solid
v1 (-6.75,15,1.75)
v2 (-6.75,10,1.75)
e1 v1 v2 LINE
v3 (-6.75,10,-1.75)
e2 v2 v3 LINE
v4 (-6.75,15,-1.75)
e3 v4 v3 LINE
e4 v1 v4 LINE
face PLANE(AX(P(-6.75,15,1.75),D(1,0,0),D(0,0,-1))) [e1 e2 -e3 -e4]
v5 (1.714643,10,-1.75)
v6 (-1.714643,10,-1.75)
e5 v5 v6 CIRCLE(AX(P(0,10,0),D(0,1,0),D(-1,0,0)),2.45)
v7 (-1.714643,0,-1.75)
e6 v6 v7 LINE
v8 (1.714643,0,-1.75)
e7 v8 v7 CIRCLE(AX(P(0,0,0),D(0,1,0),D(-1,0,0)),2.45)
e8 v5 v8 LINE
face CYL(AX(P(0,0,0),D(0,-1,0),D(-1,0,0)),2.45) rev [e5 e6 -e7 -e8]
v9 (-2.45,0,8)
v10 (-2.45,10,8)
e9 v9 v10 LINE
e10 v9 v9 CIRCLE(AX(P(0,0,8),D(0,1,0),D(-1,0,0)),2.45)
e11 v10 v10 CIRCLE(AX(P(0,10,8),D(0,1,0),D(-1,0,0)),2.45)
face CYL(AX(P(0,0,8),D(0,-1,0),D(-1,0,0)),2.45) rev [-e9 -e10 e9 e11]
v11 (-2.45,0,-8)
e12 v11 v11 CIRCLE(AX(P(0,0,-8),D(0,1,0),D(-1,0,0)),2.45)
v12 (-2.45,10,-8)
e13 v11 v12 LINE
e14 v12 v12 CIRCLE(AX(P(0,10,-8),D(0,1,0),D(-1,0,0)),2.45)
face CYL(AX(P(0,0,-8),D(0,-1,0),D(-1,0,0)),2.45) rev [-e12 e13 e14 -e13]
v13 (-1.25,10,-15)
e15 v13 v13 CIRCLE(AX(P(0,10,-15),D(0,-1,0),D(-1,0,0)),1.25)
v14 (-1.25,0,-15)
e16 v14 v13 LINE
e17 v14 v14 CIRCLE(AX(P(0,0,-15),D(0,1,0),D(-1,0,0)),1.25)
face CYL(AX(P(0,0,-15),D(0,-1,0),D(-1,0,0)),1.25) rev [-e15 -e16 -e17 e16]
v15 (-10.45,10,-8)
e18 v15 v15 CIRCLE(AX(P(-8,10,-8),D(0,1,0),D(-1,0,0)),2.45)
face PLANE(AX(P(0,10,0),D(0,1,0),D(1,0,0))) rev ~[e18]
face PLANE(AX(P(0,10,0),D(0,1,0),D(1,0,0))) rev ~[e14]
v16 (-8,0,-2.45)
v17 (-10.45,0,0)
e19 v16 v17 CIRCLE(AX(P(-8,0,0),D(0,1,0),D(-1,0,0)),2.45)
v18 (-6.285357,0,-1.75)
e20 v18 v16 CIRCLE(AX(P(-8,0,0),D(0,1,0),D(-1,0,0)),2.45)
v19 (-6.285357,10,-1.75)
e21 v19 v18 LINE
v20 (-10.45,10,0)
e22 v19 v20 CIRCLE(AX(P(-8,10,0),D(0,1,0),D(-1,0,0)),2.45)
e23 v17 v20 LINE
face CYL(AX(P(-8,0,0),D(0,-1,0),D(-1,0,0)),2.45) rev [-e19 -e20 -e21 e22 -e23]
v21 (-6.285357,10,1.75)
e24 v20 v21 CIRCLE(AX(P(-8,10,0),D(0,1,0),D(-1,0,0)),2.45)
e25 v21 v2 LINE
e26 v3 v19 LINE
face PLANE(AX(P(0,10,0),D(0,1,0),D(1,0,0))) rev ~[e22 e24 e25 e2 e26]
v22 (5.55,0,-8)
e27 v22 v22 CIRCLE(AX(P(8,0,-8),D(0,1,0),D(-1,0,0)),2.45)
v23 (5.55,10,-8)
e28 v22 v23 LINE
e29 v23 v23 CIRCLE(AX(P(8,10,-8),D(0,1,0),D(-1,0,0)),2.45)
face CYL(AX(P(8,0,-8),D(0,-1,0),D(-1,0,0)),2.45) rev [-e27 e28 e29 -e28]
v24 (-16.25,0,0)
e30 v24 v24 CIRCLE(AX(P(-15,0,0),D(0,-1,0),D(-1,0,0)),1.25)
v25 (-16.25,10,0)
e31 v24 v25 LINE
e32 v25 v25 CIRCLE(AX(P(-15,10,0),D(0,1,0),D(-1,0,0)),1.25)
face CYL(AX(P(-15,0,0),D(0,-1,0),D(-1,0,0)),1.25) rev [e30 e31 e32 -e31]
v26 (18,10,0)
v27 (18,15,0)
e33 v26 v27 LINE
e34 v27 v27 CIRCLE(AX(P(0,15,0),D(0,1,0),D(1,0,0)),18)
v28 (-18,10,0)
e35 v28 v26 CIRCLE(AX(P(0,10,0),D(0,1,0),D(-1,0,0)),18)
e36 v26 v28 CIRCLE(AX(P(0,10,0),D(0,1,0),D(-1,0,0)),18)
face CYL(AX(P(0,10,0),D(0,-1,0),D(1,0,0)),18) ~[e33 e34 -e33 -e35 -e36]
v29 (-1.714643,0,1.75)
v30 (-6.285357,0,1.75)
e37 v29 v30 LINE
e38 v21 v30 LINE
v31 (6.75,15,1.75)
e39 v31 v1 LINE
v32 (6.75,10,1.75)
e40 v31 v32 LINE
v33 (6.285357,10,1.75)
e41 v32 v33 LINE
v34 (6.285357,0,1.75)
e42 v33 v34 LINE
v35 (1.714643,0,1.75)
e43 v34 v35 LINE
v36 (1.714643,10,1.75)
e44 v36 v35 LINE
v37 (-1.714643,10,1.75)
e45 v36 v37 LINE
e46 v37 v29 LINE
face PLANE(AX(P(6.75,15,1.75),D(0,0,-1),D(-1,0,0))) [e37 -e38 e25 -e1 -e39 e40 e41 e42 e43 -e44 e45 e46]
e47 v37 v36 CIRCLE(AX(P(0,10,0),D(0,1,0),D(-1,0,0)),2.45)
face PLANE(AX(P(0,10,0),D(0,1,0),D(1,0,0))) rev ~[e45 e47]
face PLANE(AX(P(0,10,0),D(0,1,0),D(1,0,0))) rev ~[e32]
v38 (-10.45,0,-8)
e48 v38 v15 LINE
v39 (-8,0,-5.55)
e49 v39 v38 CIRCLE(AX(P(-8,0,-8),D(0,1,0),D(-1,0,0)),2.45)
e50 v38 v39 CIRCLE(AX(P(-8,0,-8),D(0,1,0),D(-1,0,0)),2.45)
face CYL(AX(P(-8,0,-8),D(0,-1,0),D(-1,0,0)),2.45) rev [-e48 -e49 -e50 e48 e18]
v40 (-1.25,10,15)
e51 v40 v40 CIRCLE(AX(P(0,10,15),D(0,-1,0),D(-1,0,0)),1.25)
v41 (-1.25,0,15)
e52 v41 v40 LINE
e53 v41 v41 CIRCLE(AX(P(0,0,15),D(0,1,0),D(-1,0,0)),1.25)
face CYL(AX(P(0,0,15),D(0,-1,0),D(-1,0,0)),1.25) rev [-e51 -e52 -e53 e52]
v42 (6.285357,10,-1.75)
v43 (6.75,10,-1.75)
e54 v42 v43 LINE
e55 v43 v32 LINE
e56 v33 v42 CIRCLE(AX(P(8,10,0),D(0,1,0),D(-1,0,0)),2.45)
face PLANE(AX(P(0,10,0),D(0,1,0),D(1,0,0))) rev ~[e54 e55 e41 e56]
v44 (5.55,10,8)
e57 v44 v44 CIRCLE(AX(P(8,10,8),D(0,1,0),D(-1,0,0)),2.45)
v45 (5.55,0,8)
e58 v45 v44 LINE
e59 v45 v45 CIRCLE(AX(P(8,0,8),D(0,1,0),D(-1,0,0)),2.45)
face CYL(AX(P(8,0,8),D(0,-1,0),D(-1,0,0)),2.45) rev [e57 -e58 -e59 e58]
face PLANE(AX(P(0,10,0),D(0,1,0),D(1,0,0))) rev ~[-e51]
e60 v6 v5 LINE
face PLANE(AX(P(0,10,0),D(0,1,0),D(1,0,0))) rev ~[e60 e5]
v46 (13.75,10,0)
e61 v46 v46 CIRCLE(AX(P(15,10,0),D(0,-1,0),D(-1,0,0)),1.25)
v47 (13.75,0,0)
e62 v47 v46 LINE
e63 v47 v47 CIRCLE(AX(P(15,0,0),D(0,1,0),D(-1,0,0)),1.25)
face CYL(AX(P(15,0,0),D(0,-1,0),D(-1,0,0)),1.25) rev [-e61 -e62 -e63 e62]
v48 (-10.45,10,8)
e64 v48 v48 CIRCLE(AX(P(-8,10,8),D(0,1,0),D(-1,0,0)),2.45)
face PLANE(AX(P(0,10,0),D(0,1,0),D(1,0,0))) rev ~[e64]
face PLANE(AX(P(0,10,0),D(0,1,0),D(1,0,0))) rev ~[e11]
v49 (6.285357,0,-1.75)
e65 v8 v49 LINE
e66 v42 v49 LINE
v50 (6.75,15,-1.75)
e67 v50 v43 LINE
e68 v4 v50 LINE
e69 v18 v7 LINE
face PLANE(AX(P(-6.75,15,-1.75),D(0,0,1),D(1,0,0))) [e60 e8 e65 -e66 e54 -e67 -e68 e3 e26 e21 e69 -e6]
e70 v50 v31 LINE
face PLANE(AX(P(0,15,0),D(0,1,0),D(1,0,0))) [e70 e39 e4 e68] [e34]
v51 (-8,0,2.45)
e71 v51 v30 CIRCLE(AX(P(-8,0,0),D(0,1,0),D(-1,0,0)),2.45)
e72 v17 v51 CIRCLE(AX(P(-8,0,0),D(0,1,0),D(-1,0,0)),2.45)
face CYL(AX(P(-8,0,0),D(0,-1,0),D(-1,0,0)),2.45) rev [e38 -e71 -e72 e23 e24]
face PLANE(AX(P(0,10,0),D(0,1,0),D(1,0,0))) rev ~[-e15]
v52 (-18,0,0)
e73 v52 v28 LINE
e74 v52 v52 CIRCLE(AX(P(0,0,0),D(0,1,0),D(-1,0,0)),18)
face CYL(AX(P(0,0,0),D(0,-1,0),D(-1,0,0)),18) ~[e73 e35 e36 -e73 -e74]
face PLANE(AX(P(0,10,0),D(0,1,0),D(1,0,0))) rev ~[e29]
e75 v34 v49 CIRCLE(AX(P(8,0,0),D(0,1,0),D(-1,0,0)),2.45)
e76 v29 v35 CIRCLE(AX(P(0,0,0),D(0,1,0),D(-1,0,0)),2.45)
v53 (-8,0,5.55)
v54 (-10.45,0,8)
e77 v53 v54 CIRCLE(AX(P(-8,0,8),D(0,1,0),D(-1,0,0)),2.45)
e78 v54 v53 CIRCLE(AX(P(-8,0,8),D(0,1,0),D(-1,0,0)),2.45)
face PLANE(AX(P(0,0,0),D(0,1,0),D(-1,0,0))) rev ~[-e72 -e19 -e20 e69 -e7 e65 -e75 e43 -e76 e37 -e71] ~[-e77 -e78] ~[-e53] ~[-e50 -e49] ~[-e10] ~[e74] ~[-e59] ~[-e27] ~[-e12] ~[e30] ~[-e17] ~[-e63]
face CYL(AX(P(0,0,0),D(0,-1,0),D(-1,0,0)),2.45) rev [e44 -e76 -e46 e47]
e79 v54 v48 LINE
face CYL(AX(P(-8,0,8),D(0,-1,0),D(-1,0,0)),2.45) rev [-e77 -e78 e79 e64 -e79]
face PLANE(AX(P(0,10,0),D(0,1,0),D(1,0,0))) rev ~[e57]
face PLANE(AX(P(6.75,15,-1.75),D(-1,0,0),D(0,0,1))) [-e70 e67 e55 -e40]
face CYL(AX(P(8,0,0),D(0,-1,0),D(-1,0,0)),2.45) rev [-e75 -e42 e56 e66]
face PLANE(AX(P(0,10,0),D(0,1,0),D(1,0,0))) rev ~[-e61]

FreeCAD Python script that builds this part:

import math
import FreeCAD as App
import Part
import Sketcher

V = App.Vector
Q = App.Units.Quantity


def add_polygon(sketch, points):
    """Adds a closed chain of lines whose ends are joined by coincident constraints."""
    first, n = sketch.GeometryCount, len(points)
    for a, b in zip(points, points[1:] + points[:1]):
        sketch.addGeometry(Part.LineSegment(App.Vector(*a, 0), App.Vector(*b, 0)), False)
    for i in range(n):
        sketch.addConstraint(Sketcher.Constraint("Coincident", first + i, 2, first + (i + 1) % n, 1))

doc = App.newDocument("Part")
params = doc.addObject("Spreadsheet::Sheet", "Params")
for row, (alias, value) in enumerate([
    ("sketch1_diameter", "36 mm"),
    ("sketch1_diameter2", "2.5 mm"),
    ("sketch1_diameter3", "4.9 mm"),
    ("pad1_length", "10 mm"),
    ("sketch2_diameter", "36 mm"),
    ("pad2_length", "5 mm"),
    ("sketch3_width", "13.5 mm"),
    ("sketch3_height", "3.5 mm"),
    ("pocket1_length", "15 mm"),
], start=1):
    params.set(f"A{row}", alias)
    params.set(f"B{row}", "=" + value)
    params.setAlias(f"B{row}", alias)

body = doc.addObject("PartDesign::Body", "Body")

# Sketch on XZ plane
sketch1 = body.newObject("Sketcher::SketchObject", "Sketch")
sketch1.AttachmentSupport = (doc.getObject("XZ_Plane"), [""])
sketch1.MapMode = "FlatFace"
sketch1.addGeometry(Part.Circle(V(0, 0, 0), V(0, 0, 1), 18), False)
sketch1.addGeometry(Part.Circle(V(-15, 0, 0), V(0, 0, 1), 1.2), False)
sketch1.addGeometry(Part.Circle(V(0, -15, 0), V(0, 0, 1), 1.2), False)
sketch1.addGeometry(Part.Circle(V(15, 0, 0), V(0, 0, 1), 1.2), False)
sketch1.addGeometry(Part.Circle(V(0, 15, 0), V(0, 0, 1), 1.2), False)
sketch1.addGeometry(Part.Circle(V(8, -8, 0), V(0, 0, 1), 2.5), False)
sketch1.addGeometry(Part.Circle(V(0, -8, 0), V(0, 0, 1), 2.5), False)
sketch1.addGeometry(Part.Circle(V(-8, -8, 0), V(0, 0, 1), 2.5), False)
sketch1.addGeometry(Part.Circle(V(8, 0, 0), V(0, 0, 1), 2.5), False)
sketch1.addGeometry(Part.Circle(V(8, 8, 0), V(0, 0, 1), 2.5), False)
sketch1.addGeometry(Part.ArcOfCircle(Part.Circle(V(0, 0, 0), V(0, 0, 1), 2.5), math.radians(0), math.radians(180)), False)
sketch1.addGeometry(Part.ArcOfCircle(Part.Circle(V(0, 0, 0), V(0, 0, 1), 2.5), math.radians(180), math.radians(360)), False)
sketch1.addGeometry(Part.ArcOfCircle(Part.Circle(V(-8, 0, 0), V(0, 0, 1), 2.5), math.radians(-90), math.radians(0)), False)
sketch1.addGeometry(Part.ArcOfCircle(Part.Circle(V(-8, 0, 0), V(0, 0, 1), 2.5), math.radians(0), math.radians(90)), False)
sketch1.addGeometry(Part.ArcOfCircle(Part.Circle(V(-8, 0, 0), V(0, 0, 1), 2.5), math.radians(90), math.radians(270)), False)
sketch1.addGeometry(Part.Circle(V(0, 8, 0), V(0, 0, 1), 2.5), False)
sketch1.addGeometry(Part.Circle(V(-8, 8, 0), V(0, 0, 1), 2.5), False)
sketch1.addConstraint(Sketcher.Constraint("Tangent", 10, 1, 11, 2))
sketch1.addConstraint(Sketcher.Constraint("Coincident", 11, 1, 10, 2))
sketch1.addConstraint(Sketcher.Constraint("Tangent", 12, 2, 13, 1))
sketch1.addConstraint(Sketcher.Constraint("Tangent", 13, 2, 14, 1))
sketch1.addConstraint(Sketcher.Constraint("Tangent", 14, 2, 12, 1))
sketch1.addConstraint(Sketcher.Constraint("Coincident", 0, 3, -1, 1))
sketch1.addConstraint(Sketcher.Constraint("Coincident", 10, 3, -1, 1))
sketch1.addConstraint(Sketcher.Constraint("Equal", 1, 2))
sketch1.addConstraint(Sketcher.Constraint("Equal", 2, 3))
sketch1.addConstraint(Sketcher.Constraint("Equal", 3, 4))
sketch1.addConstraint(Sketcher.Constraint("Equal", 5, 6))
sketch1.addConstraint(Sketcher.Constraint("Equal", 6, 7))
sketch1.addConstraint(Sketcher.Constraint("Equal", 7, 8))
sketch1.addConstraint(Sketcher.Constraint("Equal", 8, 9))
sketch1.addConstraint(Sketcher.Constraint("Equal", 9, 10))
sketch1.addConstraint(Sketcher.Constraint("Equal", 11, 12))
sketch1.addConstraint(Sketcher.Constraint("Equal", 14, 15))
sketch1.addConstraint(Sketcher.Constraint("Equal", 15, 16))
sketch1.addConstraint(Sketcher.Constraint("Symmetric", 1, 3, 3, 3, -1, 1))
sketch1.addConstraint(Sketcher.Constraint("Symmetric", 2, 3, 4, 3, -1, 1))
sketch1.addConstraint(Sketcher.Constraint("Symmetric", 7, 3, 9, 3, -1, 1))
sketch1.addConstraint(Sketcher.Constraint("Symmetric", 8, 3, 12, 3, -1, 1))
sketch1.addConstraint(Sketcher.Constraint("Symmetric", 6, 3, 15, 3, -1, 1))
sketch1.addConstraint(Sketcher.Constraint("Symmetric", 5, 3, 16, 3, -1, 1))
sketch1.addConstraint(Sketcher.Constraint("Symmetric", 5, 3, 7, 3, -2))
sketch1.addConstraint(Sketcher.Constraint("Symmetric", 13, 2, 14, 2, -1))
sketch1.addConstraint(Sketcher.Constraint("PointOnObject", 1, 3, -1))
sketch1.addConstraint(Sketcher.Constraint("PointOnObject", 2, 3, -2))
sketch1.addConstraint(Sketcher.Constraint("PointOnObject", 6, 3, -2))
sketch1.addConstraint(Sketcher.Constraint("PointOnObject", 10, 1, -1))
sketch1.addConstraint(Sketcher.Constraint("PointOnObject", 11, 1, -1))
sketch1.addConstraint(Sketcher.Constraint("PointOnObject", 12, 2, -1))
sketch1.addConstraint(Sketcher.Constraint("Horizontal", 5, 3, 6, 3))
sketch1.addConstraint(Sketcher.Constraint("Vertical", 5, 3, 8, 3))
sketch1.addConstraint(Sketcher.Constraint("Vertical", 16, 3, 13, 2))
sketch1.addConstraint(Sketcher.Constraint("Diameter", 0, Q("36 mm")))
sketch1.addConstraint(Sketcher.Constraint("Diameter", 1, Q("2.5 mm")))
sketch1.addConstraint(Sketcher.Constraint("Diameter", 5, Q("4.9 mm")))
sketch1.addConstraint(Sketcher.Constraint("DistanceX", -1, 1, 5, 3, Q("8 mm")))
sketch1.addConstraint(Sketcher.Constraint("DistanceY", 5, 3, -1, 1, Q("8 mm")))
sketch1.addConstraint(Sketcher.Constraint("DistanceX", 1, 3, 3, 3, Q("30 mm")))
sketch1.addConstraint(Sketcher.Constraint("DistanceY", 2, 3, 4, 3, Q("30 mm")))
sketch1.setExpression("Constraints[35]", "Params.sketch1_diameter")
sketch1.setExpression("Constraints[36]", "Params.sketch1_diameter2")
sketch1.setExpression("Constraints[37]", "Params.sketch1_diameter3")
pad1 = body.newObject("PartDesign::Pad", "Pad")
pad1.Profile = sketch1
pad1.setExpression("Length", "Params.pad1_length")
pad1.Reversed = True

# Sketch on XZ plane
sketch2 = body.newObject("Sketcher::SketchObject", "Sketch001")
sketch2.AttachmentSupport = (doc.getObject("XZ_Plane"), [""])
sketch2.MapMode = "FlatFace"
sketch2.AttachmentOffset = App.Placement(V(0, 0, -10), App.Rotation())
sketch2.addGeometry(Part.Circle(V(0, 0, 0), V(0, 0, 1), 18), False)
sketch2.addConstraint(Sketcher.Constraint("Coincident", 0, 3, -1, 1))
sketch2.addConstraint(Sketcher.Constraint("Diameter", 0, Q("36 mm")))
sketch2.setExpression("Constraints[1]", "Params.sketch2_diameter")
pad2 = body.newObject("PartDesign::Pad", "Pad001")
pad2.Profile = sketch2
pad2.setExpression("Length", "Params.pad2_length")
pad2.Reversed = True

# Sketch on XZ plane
sketch3 = body.newObject("Sketcher::SketchObject", "Sketch002")
sketch3.AttachmentSupport = (doc.getObject("XZ_Plane"), [""])
sketch3.MapMode = "FlatFace"
sketch3.AttachmentOffset = App.Placement(V(0, 0, -15), App.Rotation())
add_polygon(sketch3, [(6.8, -1.8), (-6.8, -1.8), (-6.8, 1.8), (6.8, 1.8)])  # lines 0-3
sketch3.addConstraint(Sketcher.Constraint("Horizontal", 0))
sketch3.addConstraint(Sketcher.Constraint("Vertical", 1))
sketch3.addConstraint(Sketcher.Constraint("Horizontal", 2))
sketch3.addConstraint(Sketcher.Constraint("Vertical", 3))
sketch3.addConstraint(Sketcher.Constraint("Symmetric", 0, 2, 2, 2, -1, 1))
sketch3.addConstraint(Sketcher.Constraint("DistanceX", 0, 2, 0, 1, Q("13.5 mm")))
sketch3.addConstraint(Sketcher.Constraint("DistanceY", 1, 1, 1, 2, Q("3.5 mm")))
sketch3.setExpression("Constraints[9]", "Params.sketch3_width")
sketch3.setExpression("Constraints[10]", "Params.sketch3_height")
pocket1 = body.newObject("PartDesign::Pocket", "Pocket")
pocket1.Profile = sketch3
pocket1.setExpression("Length", "Params.pocket1_length")
pocket1.Reversed = True

doc.recompute()
